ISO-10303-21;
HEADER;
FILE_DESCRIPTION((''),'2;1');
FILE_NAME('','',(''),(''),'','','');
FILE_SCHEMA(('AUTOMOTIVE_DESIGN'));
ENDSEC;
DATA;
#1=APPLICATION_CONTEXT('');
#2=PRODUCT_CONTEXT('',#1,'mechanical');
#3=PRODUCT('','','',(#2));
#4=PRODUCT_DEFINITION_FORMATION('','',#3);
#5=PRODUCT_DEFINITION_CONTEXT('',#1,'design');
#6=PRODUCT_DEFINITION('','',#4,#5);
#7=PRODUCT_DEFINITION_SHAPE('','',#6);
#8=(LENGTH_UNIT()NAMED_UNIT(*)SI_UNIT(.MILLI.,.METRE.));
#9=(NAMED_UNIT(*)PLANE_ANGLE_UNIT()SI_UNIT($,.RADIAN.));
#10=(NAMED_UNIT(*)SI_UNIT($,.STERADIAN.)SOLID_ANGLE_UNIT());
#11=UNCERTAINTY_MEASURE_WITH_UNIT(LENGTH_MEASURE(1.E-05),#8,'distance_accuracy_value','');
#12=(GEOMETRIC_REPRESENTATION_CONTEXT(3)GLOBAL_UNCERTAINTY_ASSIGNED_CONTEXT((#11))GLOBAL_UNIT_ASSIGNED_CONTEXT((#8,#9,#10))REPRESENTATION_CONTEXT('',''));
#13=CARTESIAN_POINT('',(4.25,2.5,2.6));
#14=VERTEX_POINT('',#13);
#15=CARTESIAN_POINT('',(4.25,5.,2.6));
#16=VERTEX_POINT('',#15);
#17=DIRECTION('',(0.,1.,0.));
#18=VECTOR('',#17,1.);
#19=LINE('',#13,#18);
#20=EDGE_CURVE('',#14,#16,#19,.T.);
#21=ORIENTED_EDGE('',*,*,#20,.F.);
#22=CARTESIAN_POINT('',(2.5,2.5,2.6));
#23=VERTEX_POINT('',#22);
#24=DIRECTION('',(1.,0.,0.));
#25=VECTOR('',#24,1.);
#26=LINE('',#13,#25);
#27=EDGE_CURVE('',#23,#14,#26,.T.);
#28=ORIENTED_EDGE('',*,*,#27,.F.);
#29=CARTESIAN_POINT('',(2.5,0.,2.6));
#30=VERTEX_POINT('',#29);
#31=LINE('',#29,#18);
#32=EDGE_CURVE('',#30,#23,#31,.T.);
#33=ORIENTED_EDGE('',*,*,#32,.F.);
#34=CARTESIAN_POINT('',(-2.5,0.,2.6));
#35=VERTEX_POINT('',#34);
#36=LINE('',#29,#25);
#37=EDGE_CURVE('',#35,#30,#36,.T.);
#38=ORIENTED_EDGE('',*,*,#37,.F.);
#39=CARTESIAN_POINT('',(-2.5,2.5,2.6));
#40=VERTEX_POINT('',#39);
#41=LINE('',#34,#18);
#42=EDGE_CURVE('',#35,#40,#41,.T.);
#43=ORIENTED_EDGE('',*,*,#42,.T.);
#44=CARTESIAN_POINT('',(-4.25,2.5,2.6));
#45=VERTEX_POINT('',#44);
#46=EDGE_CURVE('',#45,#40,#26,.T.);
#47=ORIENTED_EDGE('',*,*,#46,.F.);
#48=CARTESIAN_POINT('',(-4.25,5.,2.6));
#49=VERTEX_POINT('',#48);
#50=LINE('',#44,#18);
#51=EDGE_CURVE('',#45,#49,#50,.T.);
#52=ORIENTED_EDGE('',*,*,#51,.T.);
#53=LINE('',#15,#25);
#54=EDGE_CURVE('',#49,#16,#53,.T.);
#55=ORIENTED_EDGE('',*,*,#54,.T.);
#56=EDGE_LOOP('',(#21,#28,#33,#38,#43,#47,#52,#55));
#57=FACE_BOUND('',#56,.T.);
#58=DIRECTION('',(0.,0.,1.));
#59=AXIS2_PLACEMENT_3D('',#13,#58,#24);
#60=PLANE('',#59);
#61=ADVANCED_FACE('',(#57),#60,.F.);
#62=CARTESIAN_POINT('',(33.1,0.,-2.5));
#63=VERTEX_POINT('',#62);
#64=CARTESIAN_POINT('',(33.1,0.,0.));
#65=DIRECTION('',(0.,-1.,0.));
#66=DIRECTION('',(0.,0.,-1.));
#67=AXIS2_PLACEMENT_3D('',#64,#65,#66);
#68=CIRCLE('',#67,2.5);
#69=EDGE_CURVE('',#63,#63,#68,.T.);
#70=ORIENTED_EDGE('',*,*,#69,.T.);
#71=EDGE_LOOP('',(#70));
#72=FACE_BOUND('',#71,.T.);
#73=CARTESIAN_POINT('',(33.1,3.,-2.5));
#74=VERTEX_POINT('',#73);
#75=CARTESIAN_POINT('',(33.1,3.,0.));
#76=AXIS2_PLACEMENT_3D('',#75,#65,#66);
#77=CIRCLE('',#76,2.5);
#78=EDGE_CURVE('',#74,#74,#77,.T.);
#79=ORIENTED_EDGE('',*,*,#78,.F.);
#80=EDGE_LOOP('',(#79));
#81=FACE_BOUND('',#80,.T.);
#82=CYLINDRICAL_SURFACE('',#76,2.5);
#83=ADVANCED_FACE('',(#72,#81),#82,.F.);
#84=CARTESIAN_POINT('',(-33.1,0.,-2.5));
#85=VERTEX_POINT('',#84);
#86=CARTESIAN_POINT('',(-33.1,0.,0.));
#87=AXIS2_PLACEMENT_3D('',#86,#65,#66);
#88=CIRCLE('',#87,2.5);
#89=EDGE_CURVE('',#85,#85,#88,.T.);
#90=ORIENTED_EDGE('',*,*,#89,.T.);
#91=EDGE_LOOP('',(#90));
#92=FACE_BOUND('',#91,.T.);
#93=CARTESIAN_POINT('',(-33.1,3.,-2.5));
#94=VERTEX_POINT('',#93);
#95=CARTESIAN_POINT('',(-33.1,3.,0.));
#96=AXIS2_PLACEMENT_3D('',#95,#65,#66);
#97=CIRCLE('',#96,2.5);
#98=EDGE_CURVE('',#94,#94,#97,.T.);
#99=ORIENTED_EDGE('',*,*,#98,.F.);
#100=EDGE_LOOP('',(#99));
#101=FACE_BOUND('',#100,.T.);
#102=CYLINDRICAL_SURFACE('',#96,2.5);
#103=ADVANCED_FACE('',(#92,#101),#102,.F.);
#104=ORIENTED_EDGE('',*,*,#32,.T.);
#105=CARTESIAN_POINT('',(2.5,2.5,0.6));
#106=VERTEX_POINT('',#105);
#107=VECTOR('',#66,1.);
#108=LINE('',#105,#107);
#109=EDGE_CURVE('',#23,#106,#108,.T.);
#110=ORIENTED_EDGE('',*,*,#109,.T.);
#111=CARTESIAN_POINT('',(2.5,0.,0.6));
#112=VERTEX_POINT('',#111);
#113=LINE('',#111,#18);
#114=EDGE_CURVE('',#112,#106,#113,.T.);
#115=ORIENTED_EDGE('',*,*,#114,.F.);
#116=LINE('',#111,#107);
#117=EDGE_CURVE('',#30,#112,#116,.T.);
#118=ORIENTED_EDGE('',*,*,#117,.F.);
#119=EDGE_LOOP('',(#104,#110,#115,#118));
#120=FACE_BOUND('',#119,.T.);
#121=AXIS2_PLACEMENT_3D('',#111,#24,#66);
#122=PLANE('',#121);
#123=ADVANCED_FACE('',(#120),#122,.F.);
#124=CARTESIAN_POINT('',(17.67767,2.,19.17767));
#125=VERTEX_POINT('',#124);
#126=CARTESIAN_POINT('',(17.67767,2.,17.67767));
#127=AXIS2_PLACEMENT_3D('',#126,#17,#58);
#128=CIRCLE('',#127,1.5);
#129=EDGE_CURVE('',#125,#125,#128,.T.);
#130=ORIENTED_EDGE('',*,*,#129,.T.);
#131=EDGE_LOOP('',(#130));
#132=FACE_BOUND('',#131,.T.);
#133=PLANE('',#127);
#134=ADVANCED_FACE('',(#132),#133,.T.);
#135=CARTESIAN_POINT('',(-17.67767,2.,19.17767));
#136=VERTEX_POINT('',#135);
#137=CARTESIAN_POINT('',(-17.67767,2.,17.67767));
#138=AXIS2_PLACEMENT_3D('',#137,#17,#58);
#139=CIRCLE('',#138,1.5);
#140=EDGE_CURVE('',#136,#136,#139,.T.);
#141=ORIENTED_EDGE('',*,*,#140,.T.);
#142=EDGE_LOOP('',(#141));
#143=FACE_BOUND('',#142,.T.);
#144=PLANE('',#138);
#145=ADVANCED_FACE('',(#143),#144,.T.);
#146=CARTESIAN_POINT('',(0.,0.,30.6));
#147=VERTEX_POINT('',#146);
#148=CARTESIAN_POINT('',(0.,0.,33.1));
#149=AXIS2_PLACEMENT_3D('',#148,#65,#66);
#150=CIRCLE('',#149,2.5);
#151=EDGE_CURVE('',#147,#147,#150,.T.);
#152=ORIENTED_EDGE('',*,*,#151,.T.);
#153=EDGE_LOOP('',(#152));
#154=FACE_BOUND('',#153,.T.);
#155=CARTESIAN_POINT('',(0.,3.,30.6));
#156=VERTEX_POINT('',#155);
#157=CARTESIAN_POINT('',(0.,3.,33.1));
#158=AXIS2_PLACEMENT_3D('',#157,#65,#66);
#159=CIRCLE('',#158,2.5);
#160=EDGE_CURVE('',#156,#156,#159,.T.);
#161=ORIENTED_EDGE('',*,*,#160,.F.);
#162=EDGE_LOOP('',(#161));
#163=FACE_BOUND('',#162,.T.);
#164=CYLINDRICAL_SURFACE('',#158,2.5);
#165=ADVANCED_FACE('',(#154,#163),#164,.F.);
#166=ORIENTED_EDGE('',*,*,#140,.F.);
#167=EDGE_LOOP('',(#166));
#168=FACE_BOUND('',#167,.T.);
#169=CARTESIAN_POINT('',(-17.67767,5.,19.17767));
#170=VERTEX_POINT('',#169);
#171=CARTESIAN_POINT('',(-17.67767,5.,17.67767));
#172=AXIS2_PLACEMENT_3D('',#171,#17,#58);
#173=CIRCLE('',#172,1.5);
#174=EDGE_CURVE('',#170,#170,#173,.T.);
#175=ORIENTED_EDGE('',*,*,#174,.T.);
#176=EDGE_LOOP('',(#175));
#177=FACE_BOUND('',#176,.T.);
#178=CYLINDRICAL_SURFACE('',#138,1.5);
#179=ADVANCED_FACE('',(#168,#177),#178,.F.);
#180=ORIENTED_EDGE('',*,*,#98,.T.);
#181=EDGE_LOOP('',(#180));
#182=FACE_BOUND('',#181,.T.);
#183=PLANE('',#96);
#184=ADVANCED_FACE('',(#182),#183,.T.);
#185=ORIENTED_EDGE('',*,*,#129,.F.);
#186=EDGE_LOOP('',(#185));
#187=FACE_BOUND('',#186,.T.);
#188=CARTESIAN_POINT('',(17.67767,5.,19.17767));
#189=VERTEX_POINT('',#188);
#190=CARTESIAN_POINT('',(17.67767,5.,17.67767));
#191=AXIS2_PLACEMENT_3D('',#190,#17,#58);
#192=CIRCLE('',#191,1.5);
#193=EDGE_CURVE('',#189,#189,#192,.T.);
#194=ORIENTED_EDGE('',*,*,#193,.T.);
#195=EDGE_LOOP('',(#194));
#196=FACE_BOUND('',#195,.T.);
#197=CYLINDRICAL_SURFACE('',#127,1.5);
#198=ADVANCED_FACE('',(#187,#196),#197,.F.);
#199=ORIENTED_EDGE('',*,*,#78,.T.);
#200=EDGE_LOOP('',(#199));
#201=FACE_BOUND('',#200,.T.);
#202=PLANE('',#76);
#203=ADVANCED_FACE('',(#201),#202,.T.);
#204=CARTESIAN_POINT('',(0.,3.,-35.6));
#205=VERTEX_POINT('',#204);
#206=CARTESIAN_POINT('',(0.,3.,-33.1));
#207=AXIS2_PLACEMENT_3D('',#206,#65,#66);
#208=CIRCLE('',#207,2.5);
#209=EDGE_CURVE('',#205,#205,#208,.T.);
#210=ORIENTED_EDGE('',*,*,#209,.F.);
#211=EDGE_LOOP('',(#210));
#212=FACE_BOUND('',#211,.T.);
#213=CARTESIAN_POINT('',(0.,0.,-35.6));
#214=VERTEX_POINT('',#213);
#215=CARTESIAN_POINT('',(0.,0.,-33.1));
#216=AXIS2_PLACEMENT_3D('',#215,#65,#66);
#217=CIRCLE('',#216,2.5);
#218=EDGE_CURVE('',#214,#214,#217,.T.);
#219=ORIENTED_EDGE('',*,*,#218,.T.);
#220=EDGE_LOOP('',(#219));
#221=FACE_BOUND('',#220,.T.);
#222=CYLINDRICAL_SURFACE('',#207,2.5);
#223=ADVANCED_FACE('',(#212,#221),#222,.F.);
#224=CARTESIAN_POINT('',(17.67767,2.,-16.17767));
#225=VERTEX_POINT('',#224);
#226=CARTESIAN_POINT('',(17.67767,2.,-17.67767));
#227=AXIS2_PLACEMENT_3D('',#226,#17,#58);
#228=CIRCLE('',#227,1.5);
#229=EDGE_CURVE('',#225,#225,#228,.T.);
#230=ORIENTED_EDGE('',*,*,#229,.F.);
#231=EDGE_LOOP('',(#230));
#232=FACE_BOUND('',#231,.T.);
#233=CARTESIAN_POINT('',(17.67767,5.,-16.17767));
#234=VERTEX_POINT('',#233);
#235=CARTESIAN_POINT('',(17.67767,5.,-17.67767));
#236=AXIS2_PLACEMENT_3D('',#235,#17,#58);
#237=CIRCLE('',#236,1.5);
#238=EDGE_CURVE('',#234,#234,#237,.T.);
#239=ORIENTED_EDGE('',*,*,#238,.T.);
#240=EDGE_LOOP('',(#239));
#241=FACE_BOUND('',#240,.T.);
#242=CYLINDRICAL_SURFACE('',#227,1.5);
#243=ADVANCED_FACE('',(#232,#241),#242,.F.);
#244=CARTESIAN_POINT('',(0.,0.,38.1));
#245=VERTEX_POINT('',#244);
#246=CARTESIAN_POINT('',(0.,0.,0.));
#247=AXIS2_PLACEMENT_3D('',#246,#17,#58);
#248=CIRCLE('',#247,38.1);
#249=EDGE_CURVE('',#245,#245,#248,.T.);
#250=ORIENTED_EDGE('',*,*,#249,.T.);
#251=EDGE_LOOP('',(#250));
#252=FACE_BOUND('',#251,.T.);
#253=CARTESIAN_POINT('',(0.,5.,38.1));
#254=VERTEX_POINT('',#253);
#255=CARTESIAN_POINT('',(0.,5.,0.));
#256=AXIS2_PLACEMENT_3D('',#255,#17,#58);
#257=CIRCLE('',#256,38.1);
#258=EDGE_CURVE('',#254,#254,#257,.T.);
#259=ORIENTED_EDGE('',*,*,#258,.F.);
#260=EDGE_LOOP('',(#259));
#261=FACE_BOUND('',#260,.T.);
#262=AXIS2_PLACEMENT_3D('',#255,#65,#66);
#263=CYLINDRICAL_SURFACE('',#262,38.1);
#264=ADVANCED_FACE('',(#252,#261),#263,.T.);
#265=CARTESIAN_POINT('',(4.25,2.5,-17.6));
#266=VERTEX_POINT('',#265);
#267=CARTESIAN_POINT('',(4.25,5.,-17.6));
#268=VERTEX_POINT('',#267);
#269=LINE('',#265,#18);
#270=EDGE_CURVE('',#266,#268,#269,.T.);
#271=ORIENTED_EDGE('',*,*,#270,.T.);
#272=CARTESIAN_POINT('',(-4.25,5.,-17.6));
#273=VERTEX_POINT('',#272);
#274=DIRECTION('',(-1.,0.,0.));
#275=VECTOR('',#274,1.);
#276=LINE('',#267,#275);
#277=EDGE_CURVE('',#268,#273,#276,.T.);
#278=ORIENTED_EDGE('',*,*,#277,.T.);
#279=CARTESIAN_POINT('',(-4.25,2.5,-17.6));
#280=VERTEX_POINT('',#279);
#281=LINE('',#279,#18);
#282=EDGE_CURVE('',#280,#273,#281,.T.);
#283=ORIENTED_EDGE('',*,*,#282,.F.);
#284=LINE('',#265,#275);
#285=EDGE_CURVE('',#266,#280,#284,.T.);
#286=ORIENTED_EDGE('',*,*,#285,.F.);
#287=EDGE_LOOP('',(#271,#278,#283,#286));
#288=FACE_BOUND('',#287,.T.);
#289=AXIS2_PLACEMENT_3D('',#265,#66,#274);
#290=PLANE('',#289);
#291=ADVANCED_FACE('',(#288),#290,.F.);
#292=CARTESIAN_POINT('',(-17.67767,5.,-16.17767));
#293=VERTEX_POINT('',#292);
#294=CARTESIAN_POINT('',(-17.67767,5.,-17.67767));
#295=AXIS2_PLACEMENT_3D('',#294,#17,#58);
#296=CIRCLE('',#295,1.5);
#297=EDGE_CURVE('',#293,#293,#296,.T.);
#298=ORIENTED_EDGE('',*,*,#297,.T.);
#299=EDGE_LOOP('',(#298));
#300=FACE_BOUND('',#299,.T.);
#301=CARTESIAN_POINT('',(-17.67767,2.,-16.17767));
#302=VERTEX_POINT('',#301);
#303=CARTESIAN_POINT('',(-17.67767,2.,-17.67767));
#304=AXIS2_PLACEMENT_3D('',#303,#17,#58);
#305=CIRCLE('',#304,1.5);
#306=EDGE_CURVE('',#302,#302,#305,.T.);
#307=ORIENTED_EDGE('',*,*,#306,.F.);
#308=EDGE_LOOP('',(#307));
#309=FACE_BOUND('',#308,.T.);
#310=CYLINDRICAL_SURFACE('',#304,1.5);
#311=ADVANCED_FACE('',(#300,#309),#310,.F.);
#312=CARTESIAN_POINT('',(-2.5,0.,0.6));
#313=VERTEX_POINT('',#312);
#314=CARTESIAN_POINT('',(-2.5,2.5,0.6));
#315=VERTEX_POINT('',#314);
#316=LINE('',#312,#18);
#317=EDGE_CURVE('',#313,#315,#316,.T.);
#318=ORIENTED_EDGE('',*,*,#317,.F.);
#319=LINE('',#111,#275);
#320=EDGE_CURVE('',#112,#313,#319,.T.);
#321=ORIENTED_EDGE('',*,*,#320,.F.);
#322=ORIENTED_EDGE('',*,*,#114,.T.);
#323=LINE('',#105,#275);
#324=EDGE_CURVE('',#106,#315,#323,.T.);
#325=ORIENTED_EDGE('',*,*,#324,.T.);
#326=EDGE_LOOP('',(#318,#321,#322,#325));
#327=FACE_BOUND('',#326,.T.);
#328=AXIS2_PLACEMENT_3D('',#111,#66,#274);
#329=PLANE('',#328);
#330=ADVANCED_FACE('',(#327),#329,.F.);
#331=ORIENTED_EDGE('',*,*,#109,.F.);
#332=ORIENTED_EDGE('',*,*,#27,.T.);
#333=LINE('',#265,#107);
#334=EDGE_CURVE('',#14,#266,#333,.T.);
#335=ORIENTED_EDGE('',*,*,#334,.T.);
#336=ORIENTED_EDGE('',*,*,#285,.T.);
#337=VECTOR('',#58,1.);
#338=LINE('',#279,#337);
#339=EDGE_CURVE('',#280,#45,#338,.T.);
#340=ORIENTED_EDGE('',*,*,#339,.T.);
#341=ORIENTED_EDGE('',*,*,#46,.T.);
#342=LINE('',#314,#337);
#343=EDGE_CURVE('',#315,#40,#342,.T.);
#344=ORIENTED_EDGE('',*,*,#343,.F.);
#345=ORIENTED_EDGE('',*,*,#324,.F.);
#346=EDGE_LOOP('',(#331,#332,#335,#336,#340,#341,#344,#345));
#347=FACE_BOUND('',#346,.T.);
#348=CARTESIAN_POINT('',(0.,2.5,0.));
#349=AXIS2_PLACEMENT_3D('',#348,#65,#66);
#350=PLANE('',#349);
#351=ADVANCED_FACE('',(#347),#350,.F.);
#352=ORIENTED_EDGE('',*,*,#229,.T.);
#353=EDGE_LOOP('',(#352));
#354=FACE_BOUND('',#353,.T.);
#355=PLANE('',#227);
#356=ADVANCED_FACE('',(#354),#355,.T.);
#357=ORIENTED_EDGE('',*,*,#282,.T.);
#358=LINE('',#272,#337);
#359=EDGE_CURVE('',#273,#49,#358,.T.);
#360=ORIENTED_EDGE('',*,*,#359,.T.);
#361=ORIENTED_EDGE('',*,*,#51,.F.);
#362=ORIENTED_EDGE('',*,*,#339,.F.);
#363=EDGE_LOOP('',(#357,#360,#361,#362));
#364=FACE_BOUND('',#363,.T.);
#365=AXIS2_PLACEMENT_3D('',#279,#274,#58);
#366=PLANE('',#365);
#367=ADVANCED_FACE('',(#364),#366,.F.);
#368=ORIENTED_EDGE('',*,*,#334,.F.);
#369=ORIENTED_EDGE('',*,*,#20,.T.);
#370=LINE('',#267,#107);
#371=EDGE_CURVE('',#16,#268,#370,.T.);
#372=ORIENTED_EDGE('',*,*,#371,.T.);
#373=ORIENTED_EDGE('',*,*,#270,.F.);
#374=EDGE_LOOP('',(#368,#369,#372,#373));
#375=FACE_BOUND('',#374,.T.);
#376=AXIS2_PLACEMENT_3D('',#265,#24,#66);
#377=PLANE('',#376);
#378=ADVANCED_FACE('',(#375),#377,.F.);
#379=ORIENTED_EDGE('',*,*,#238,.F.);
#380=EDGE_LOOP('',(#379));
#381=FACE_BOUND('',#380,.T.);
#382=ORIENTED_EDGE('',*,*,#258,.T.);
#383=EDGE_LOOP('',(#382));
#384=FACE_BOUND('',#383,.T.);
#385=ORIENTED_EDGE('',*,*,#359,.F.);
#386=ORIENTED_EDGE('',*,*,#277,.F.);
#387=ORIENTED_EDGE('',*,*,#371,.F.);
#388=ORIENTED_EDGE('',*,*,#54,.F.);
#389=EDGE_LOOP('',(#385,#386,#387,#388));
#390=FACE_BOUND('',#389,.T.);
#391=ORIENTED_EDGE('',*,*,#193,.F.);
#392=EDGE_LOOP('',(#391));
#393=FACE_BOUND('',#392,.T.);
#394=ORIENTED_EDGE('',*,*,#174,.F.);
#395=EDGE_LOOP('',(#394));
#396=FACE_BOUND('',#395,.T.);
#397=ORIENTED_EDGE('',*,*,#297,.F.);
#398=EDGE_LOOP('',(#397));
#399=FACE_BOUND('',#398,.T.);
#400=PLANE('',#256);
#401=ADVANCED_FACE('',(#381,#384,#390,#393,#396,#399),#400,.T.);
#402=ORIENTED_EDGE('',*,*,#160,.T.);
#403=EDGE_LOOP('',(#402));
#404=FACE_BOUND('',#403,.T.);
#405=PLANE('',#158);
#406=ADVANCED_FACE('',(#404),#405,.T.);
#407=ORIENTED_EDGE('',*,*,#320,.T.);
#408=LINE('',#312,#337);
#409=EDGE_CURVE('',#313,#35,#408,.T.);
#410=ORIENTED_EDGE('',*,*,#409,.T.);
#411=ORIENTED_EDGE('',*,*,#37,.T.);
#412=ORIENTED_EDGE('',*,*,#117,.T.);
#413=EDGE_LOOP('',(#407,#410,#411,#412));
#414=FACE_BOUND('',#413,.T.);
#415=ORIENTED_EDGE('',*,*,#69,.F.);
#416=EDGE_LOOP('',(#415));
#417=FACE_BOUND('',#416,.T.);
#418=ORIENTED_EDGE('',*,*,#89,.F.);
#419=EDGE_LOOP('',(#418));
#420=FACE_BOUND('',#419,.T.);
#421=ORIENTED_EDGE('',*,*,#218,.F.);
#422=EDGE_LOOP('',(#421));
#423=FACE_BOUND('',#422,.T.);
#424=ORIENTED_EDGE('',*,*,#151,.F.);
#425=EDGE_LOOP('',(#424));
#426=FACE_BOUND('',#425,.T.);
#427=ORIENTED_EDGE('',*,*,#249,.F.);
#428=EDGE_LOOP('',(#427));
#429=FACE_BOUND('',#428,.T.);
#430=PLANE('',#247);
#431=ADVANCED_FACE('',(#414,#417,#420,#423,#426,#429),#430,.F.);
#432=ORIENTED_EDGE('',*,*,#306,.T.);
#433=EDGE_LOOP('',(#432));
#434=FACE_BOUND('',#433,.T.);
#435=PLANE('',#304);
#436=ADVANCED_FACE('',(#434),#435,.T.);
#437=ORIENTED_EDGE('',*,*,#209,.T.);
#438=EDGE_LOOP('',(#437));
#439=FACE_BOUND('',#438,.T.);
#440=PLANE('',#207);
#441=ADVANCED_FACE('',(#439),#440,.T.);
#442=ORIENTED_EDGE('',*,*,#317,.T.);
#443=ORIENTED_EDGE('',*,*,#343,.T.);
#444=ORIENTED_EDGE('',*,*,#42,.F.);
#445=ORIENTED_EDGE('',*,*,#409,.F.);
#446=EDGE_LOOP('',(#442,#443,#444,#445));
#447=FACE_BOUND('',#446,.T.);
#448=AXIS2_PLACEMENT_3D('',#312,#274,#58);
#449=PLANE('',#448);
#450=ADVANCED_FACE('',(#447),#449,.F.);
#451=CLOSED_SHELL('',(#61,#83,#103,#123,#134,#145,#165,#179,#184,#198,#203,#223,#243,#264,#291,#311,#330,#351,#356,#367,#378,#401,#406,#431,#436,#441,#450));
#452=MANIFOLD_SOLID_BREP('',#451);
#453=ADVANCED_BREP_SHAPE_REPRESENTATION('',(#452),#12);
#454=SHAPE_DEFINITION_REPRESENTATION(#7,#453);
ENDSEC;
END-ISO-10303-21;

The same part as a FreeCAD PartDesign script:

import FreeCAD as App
import Part
import Sketcher
from FreeCAD import Vector


def add_polygon(sketch, points):
    """Adds a closed chain of lines whose ends are joined by coincident constraints."""
    first, n = sketch.GeometryCount, len(points)
    for a, b in zip(points, points[1:] + points[:1]):
        sketch.addGeometry(Part.LineSegment(App.Vector(*a, 0), App.Vector(*b, 0)), False)
    for i in range(n):
        sketch.addConstraint(Sketcher.Constraint("Coincident", first + i, 2, first + (i + 1) % n, 1))

doc = App.newDocument("Part")
body = doc.addObject("PartDesign::Body", "Body")

# Sketch on XZ plane
sketch1 = doc.addObject("Sketcher::SketchObject", "Sketch")
body.addObject(sketch1)
sketch1.AttachmentSupport = (doc.XZ_Plane, [""])
sketch1.MapMode = "FlatFace"
sketch1.addGeometry(Part.Circle(Vector(0, 0, 0), Vector(0, 0, 1), 38), False)
sketch1.addConstraint([
    Sketcher.Constraint("Coincident", 0, 3, -1, 1),
    Sketcher.Constraint("Diameter", 0, 76.2),
])
pad1 = doc.addObject("PartDesign::Pad", "Pad")
body.addObject(pad1)
pad1.Profile = sketch1
pad1.Length = 5
pad1.Reversed = True

# Sketch on XZ plane
sketch2 = doc.addObject("Sketcher::SketchObject", "Sketch001")
body.addObject(sketch2)
sketch2.AttachmentSupport = (doc.XZ_Plane, [""])
sketch2.MapMode = "FlatFace"
sketch2.AttachmentOffset = App.Placement(Vector(0, 0, -5), App.Rotation())
add_polygon(sketch2, [(-4, -18), (-4, 3), (4, 3), (4, -18)])  # lines 0-3
sketch2.addConstraint([
    Sketcher.Constraint("Vertical", 0),
    Sketcher.Constraint("Horizontal", 1),
    Sketcher.Constraint("Vertical", 2),
    Sketcher.Constraint("Horizontal", 3),
    Sketcher.Constraint("DistanceX", 1, 1, 1, 2, 8.5),
    Sketcher.Constraint("DistanceY", 0, 1, 0, 2, 20.2),
    Sketcher.Constraint("DistanceY", -1, 1, 0, 2, 2.6),
    Sketcher.Constraint("DistanceX", 0, 2, -1, 1, 4.25),
])
pocket1 = doc.addObject("PartDesign::Pocket", "Pocket")
body.addObject(pocket1)
pocket1.Profile = sketch2
pocket1.Length = 2.5
pocket1.Reversed = True

# Sketch on XZ plane
sketch3 = doc.addObject("Sketcher::SketchObject", "Sketch002")
body.addObject(sketch3)
sketch3.AttachmentSupport = (doc.XZ_Plane, [""])
sketch3.MapMode = "FlatFace"
sketch3.AttachmentOffset = App.Placement(Vector(0, 0, -2.5), App.Rotation())
add_polygon(sketch3, [(-2.5, 0.6), (-2.5, 2.6), (2.5, 2.6), (2.5, 0.6)])  # lines 0-3
sketch3.addConstraint([
    Sketcher.Constraint("Vertical", 0),
    Sketcher.Constraint("Horizontal", 1),
    Sketcher.Constraint("Vertical", 2),
    Sketcher.Constraint("Horizontal", 3),
    Sketcher.Constraint("DistanceX", 1, 1, 1, 2, 5.0),
    Sketcher.Constraint("DistanceY", 0, 1, 0, 2, 2.0),
    Sketcher.Constraint("DistanceX", 0, 2, -1, 1, 2.5),
    Sketcher.Constraint("DistanceY", -1, 1, 0, 2, 2.6),
])
pocket2 = doc.addObject("PartDesign::Pocket", "Pocket001")
body.addObject(pocket2)
pocket2.Profile = sketch3
pocket2.Type = "ThroughAll"
pocket2.Reversed = True

# Sketch on XZ plane
sketch4 = doc.addObject("Sketcher::SketchObject", "Sketch003")
body.addObject(sketch4)
sketch4.AttachmentSupport = (doc.XZ_Plane, [""])
sketch4.MapMode = "FlatFace"
sketch4.AttachmentOffset = App.Placement(Vector(0, 0, -5), App.Rotation())
sketch4.addGeometry([
    Part.Circle(Vector(17.7, -17.7, 0), Vector(0, 0, 1), 1.5),
    Part.Circle(Vector(-17.7, -17.7, 0), Vector(0, 0, 1), 1.5),
    Part.Circle(Vector(-17.7, 17.7, 0), Vector(0, 0, 1), 1.5),
    Part.Circle(Vector(17.7, 17.7, 0), Vector(0, 0, 1), 1.5),
], False)
sketch4.addConstraint([
    Sketcher.Constraint("Equal", 0, 1),
    Sketcher.Constraint("Equal", 1, 2),
    Sketcher.Constraint("Equal", 2, 3),
    Sketcher.Constraint("Symmetric", 0, 3, 2, 3, -1, 1),
    Sketcher.Constraint("Symmetric", 1, 3, 3, 3, -1, 1),
    Sketcher.Constraint("Symmetric", 0, 3, 1, 3, -2),
    Sketcher.Constraint("Diameter", 0, 3.0),
    Sketcher.Constraint("DistanceX", -1, 1, 0, 3, 17.67767),
    Sketcher.Constraint("DistanceY", 0, 3, -1, 1, 17.67767),
])
pocket3 = doc.addObject("PartDesign::Pocket", "Pocket002")
body.addObject(pocket3)
pocket3.Profile = sketch4
pocket3.Length = 3
pocket3.Reversed = True

# Sketch on XZ plane
sketch5 = doc.addObject("Sketcher::SketchObject", "Sketch004")
body.addObject(sketch5)
sketch5.AttachmentSupport = (doc.XZ_Plane, [""])
sketch5.MapMode = "FlatFace"
sketch5.addGeometry([
    Part.Circle(Vector(0, -33.1, 0), Vector(0, 0, 1), 2.5),
    Part.Circle(Vector(33.1, 0, 0), Vector(0, 0, 1), 2.5),
    Part.Circle(Vector(0, 33.1, 0), Vector(0, 0, 1), 2.5),
    Part.Circle(Vector(-33.1, 0, 0), Vector(0, 0, 1), 2.5),
], False)
sketch5.addConstraint([
    Sketcher.Constraint("Equal", 0, 1),
    Sketcher.Constraint("Equal", 1, 2),
    Sketcher.Constraint("Equal", 2, 3),
    Sketcher.Constraint("Symmetric", 0, 3, 2, 3, -1, 1),
    Sketcher.Constraint("Symmetric", 1, 3, 3, 3, -1, 1),
    Sketcher.Constraint("PointOnObject", 0, 3, -2),
    Sketcher.Constraint("PointOnObject", 1, 3, -1),
    Sketcher.Constraint("Diameter", 0, 5.0),
    Sketcher.Constraint("DistanceY", 0, 3, -1, 1, 33.1),
    Sketcher.Constraint("DistanceX", -1, 1, 1, 3, 33.1),
])
pocket4 = doc.addObject("PartDesign::Pocket", "Pocket003")
body.addObject(pocket4)
pocket4.Profile = sketch5
pocket4.Length = 3

doc.recompute()
